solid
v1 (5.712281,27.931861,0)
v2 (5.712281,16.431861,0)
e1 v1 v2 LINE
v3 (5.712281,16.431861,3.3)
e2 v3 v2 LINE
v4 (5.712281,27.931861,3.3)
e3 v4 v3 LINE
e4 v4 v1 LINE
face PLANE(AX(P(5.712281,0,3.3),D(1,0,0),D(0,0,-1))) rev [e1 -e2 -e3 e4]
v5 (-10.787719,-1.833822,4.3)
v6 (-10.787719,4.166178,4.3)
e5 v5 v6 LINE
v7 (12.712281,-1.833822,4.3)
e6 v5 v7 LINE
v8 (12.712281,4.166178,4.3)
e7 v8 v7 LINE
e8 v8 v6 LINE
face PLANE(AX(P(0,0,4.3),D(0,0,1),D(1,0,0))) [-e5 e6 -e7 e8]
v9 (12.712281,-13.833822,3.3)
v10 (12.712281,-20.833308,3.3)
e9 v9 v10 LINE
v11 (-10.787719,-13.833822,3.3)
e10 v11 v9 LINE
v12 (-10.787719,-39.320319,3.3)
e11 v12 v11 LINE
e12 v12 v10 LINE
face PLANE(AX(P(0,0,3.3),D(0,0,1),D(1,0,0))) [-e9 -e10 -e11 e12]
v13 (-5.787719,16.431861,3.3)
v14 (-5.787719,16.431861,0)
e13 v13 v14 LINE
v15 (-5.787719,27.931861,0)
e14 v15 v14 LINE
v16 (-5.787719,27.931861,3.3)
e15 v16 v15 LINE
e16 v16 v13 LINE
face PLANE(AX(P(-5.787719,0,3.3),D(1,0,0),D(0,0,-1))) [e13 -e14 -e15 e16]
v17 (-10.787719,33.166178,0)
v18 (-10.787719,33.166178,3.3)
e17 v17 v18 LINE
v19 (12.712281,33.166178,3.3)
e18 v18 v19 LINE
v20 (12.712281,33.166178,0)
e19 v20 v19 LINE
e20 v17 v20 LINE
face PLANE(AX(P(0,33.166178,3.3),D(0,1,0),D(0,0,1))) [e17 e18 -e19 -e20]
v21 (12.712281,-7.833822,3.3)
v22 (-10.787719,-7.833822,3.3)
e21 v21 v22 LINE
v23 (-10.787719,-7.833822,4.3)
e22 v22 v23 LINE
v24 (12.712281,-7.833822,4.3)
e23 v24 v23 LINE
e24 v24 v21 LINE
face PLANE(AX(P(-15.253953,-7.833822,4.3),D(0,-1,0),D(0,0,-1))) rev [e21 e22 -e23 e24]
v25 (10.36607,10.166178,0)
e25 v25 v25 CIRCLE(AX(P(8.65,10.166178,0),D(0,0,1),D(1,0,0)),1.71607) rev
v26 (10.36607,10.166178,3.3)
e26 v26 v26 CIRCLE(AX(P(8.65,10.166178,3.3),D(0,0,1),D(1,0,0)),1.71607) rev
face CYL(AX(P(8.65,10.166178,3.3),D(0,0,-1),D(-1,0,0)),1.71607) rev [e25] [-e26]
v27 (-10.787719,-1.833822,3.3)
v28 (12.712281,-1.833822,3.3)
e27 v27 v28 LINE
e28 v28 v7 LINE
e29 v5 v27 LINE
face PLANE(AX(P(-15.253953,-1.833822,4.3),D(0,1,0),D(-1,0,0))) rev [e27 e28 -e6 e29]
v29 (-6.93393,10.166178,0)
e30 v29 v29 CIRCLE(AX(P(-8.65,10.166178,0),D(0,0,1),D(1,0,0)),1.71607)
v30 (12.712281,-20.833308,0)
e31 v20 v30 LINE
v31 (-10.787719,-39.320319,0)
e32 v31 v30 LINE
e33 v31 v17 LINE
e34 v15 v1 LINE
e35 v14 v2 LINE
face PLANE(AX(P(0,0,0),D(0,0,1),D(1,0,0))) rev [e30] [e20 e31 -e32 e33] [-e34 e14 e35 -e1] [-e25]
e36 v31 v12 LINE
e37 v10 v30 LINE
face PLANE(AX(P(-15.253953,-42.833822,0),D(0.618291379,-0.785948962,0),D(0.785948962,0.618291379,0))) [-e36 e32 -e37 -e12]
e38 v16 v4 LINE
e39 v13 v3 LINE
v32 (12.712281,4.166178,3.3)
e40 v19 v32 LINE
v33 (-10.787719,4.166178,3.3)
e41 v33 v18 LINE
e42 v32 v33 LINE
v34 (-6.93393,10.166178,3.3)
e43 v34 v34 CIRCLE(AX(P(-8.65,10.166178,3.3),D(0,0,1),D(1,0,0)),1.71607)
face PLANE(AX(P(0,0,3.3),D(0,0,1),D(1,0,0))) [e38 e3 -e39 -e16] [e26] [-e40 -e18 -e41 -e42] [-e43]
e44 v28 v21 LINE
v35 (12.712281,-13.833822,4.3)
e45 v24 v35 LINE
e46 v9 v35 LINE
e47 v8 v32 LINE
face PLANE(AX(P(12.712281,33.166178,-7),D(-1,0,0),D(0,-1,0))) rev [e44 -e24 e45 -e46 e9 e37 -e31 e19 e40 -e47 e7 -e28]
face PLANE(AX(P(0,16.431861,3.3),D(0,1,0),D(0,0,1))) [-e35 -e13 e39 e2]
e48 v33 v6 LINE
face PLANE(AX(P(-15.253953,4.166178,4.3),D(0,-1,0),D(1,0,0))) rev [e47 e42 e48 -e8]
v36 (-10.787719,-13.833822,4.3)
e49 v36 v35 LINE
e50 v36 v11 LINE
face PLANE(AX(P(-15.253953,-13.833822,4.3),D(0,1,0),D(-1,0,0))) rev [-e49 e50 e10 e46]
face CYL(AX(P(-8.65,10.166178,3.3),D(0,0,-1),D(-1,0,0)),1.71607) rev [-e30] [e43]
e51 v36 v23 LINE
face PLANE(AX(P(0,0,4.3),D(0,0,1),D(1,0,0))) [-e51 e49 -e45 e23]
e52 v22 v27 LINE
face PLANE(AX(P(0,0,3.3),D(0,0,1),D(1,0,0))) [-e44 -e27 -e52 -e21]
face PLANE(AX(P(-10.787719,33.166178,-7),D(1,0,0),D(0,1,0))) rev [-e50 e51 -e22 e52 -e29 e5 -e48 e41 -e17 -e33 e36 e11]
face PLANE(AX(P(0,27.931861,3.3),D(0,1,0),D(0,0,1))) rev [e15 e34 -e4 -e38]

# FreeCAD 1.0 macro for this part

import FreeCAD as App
import Part
import Sketcher
from FreeCAD import Vector


def add_polygon(sketch, points):
    """Adds a closed chain of lines whose ends are joined by coincident constraints."""
    first, n = sketch.GeometryCount, len(points)
    for a, b in zip(points, points[1:] + points[:1]):
        sketch.addGeometry(Part.LineSegment(App.Vector(*a, 0), App.Vector(*b, 0)), False)
    for i in range(n):
        sketch.addConstraint(Sketcher.Constraint("Coincident", first + i, 2, first + (i + 1) % n, 1))

doc = App.newDocument("Part")
body = doc.addObject("PartDesign::Body", "Body")

# Sketch on XY plane
sketch1 = doc.addObject("Sketcher::SketchObject", "Sketch")
body.addObject(sketch1)
sketch1.AttachmentSupport = (doc.XY_Plane, [""])
sketch1.MapMode = "FlatFace"
add_polygon(sketch1, [(-15.3, 33.2), (-15.3, -42.8), (15.3, -42.8), (15.3, 33.2)])  # lines 0-3
add_polygon(sketch1, [(12.3, -39.8), (-12.3, -39.8), (-12.3, -20.8), (12.3, -20.8)])  # lines 4-7
sketch1.addGeometry(Part.Circle(Vector(-8.7, 10.2, 0), Vector(0, 0, 1), 1.7), False)  # 8
add_polygon(sketch1, [(5.7, 16.4), (-5.8, 16.4), (-5.8, 27.9), (5.7, 27.9)])  # lines 9-12
sketch1.addGeometry(Part.Circle(Vector(8.7, 10.2, 0), Vector(0, 0, 1), 1.7), False)  # 13
sketch1.addConstraint([
    Sketcher.Constraint("Vertical", 0),
    Sketcher.Constraint("Horizontal", 1),
    Sketcher.Constraint("Vertical", 2),
    Sketcher.Constraint("Horizontal", 3),
    Sketcher.Constraint("Horizontal", 4),
    Sketcher.Constraint("Vertical", 5),
    Sketcher.Constraint("Horizontal", 6),
    Sketcher.Constraint("Vertical", 7),
    Sketcher.Constraint("Horizontal", 9),
    Sketcher.Constraint("Vertical", 10),
    Sketcher.Constraint("Horizontal", 11),
    Sketcher.Constraint("Vertical", 12),
    Sketcher.Constraint("Equal", 8, 13),
    Sketcher.Constraint("Symmetric", 8, 3, 13, 3, -2),
    Sketcher.Constraint("Equal", 11, 10),
    Sketcher.Constraint("DistanceY", 0, 2, 0, 1, 76.0),
    Sketcher.Constraint("DistanceY", 5, 1, 5, 2, 19.0),
    Sketcher.Constraint("DistanceX", 9, 2, 9, 1, 11.5),
    Sketcher.Constraint("DistanceY", 0, 2, 8, 3, 53.0),
    Sketcher.Constraint("DistanceX", 0, 2, 4, 2, 3.0),
    Sketcher.Constraint("DistanceY", 0, 2, 4, 2, 3.0),
    Sketcher.Constraint("DistanceX", 6, 2, 1, 2, 3.0),
    Sketcher.Constraint("DistanceX", 8, 3, 13, 3, 17.3),
    Sketcher.Constraint("Diameter", 8, 3.432139),
    Sketcher.Constraint("DistanceX", 1, 1, 1, 2, 30.507906),
    Sketcher.Constraint("DistanceX", 9, 2, -1, 1, 5.787719),
    Sketcher.Constraint("DistanceY", -1, 1, 9, 2, 16.431861),
    Sketcher.Constraint("DistanceY", -1, 1, 8, 3, 10.166178),
    Sketcher.Constraint("DistanceX", 0, 2, -1, 1, 15.253953),
])
pad1 = doc.addObject("PartDesign::Pad", "Pad")
body.addObject(pad1)
pad1.Profile = sketch1
pad1.Length = 3.3

# Sketch on XY plane
sketch2 = doc.addObject("Sketcher::SketchObject", "Sketch001")
body.addObject(sketch2)
sketch2.AttachmentSupport = (doc.XY_Plane, [""])
sketch2.MapMode = "FlatFace"
sketch2.AttachmentOffset = App.Placement(Vector(0, 0, 3.3), App.Rotation())
add_polygon(sketch2, [(-15, 4), (-15, -2), (15, -2), (15, 4)])  # lines 0-3
add_polygon(sketch2, [(-15, -8), (-15, -14), (15, -14), (15, -8)])  # lines 4-7
sketch2.addConstraint([
    Sketcher.Constraint("Vertical", 0),
    Sketcher.Constraint("Horizontal", 1),
    Sketcher.Constraint("Vertical", 2),
    Sketcher.Constraint("Horizontal", 3),
    Sketcher.Constraint("Vertical", 4),
    Sketcher.Constraint("Horizontal", 5),
    Sketcher.Constraint("Vertical", 6),
    Sketcher.Constraint("Horizontal", 7),
    Sketcher.Constraint("Vertical", 3, 2, 4, 2),
    Sketcher.Constraint("Vertical", 2, 2, 5, 2),
    Sketcher.Constraint("Equal", 2, 4),
    Sketcher.Constraint("DistanceY", 0, 2, 0, 1, 6.0),
    Sketcher.Constraint("DistanceY", 4, 2, 0, 2, 12.0),
    Sketcher.Constraint("DistanceX", 1, 1, 1, 2, 30.507906),
    Sketcher.Constraint("DistanceX", 0, 2, -1, 1, 15.253953),
    Sketcher.Constraint("DistanceY", 0, 2, -1, 1, 1.833822),
])
pad2 = doc.addObject("PartDesign::Pad", "Pad001")
body.addObject(pad2)
pad2.Profile = sketch2
pad2.Length = 1

# Sketch on XY plane
sketch3 = doc.addObject("Sketcher::SketchObject", "Sketch002")
body.addObject(sketch3)
sketch3.AttachmentSupport = (doc.XY_Plane, [""])
sketch3.MapMode = "FlatFace"
add_polygon(sketch3, [(-15, -18), (15, -43), (15, -18)])  # lines 0-2
sketch3.addConstraint([
    Sketcher.Constraint("Vertical", 1),
    Sketcher.Constraint("Horizontal", 2),
    Sketcher.Constraint("DistanceY", 1, 1, 1, 2, 24.359762),
    Sketcher.Constraint("Distance", 0, 39.040112),
    Sketcher.Constraint("DistanceY", 1, 2, -1, 1, 18.47406),
    Sketcher.Constraint("DistanceX", -1, 1, 0, 2, 15.253953),
])
pad3 = doc.addObject("PartDesign::Pad", "Pad002")
body.addObject(pad3)
pad3.Profile = sketch3
pad3.Length = 3.3

# Sketch on XY plane
sketch4 = doc.addObject("Sketcher::SketchObject", "Sketch003")
body.addObject(sketch4)
sketch4.AttachmentSupport = (doc.XY_Plane, [""])
sketch4.MapMode = "FlatFace"
sketch4.AttachmentOffset = App.Placement(Vector(0, 0, 3.3), App.Rotation())
add_polygon(sketch4, [(15, -43), (-15, -19), (-15, -43)])  # lines 0-2
sketch4.addConstraint([
    Sketcher.Constraint("Vertical", 1),
    Sketcher.Constraint("Horizontal", 2),
    Sketcher.Constraint("DistanceX", 2, 1, 2, 2, 30.507906),
    Sketcher.Constraint("DistanceY", 1, 2, 1, 1, 24.027073),
    Sketcher.Constraint("DistanceY", 0, 2, -1, 1, 18.806749),
    Sketcher.Constraint("DistanceX", 0, 2, -1, 1, 15.253953),
])
pocket1 = doc.addObject("PartDesign::Pocket", "Pocket")
body.addObject(pocket1)
pocket1.Profile = sketch4
pocket1.Length = 3.3

# Sketch on XY plane
sketch5 = doc.addObject("Sketcher::SketchObject", "Sketch004")
body.addObject(sketch5)
sketch5.AttachmentSupport = (doc.XY_Plane, [""])
sketch5.MapMode = "FlatFace"
sketch5.AttachmentOffset = App.Placement(Vector(0, 0, 3.3), App.Rotation())
add_polygon(sketch5, [(-15, -14), (-15, -43), (15, -43), (15, -14)])  # lines 0-3
sketch5.addConstraint([
    Sketcher.Constraint("Vertical", 0),
    Sketcher.Constraint("Horizontal", 1),
    Sketcher.Constraint("Vertical", 2),
    Sketcher.Constraint("Horizontal", 3),
    Sketcher.Constraint("DistanceY", 0, 2, 0, 1, 29.0),
    Sketcher.Constraint("DistanceX", 1, 1, 1, 2, 30.507906),
    Sketcher.Constraint("DistanceX", 0, 2, -1, 1, 15.253953),
    Sketcher.Constraint("DistanceY", 0, 2, -1, 1, 42.833822),
])
pad4 = doc.addObject("PartDesign::Pad", "Pad003")
body.addObject(pad4)
pad4.Profile = sketch5
pad4.Length = 3.3
pad4.Reversed = True

# Sketch on XY plane
sketch6 = doc.addObject("Sketcher::SketchObject", "Sketch005")
body.addObject(sketch6)
sketch6.AttachmentSupport = (doc.XY_Plane, [""])
sketch6.MapMode = "FlatFace"
sketch6.AttachmentOffset = App.Placement(Vector(0, 0, 3.3), App.Rotation())
add_polygon(sketch6, [(15, -19), (-15, -43), (15, -43)])  # lines 0-2
sketch6.addConstraint([
    Sketcher.Constraint("Horizontal", 1),
    Sketcher.Constraint("Vertical", 2),
    Sketcher.Constraint("DistanceY", 2, 1, 2, 2, 24.0),
    Sketcher.Constraint("Distance", 0, 38.81665),
    Sketcher.Constraint("DistanceX", 0, 2, -1, 1, 15.253953),
    Sketcher.Constraint("DistanceY", 0, 2, -1, 1, 42.833822),
])
pocket2 = doc.addObject("PartDesign::Pocket", "Pocket001")
body.addObject(pocket2)
pocket2.Profile = sketch6
pocket2.Length = 3.3

# Sketch on XY plane
sketch7 = doc.addObject("Sketcher::SketchObject", "Sketch006")
body.addObject(sketch7)
sketch7.AttachmentSupport = (doc.XY_Plane, [""])
sketch7.MapMode = "FlatFace"
sketch7.AttachmentOffset = App.Placement(Vector(0, 0, 4.3), App.Rotation())
add_polygon(sketch7, [(-15.3, 33.2), (-15.3, -43.1), (-10.8, -43.1), (-10.8, 33.2)])  # lines 0-3
add_polygon(sketch7, [(12.7, 33.2), (12.7, -22.7), (16.6, -22.7), (16.6, 33.2)])  # lines 4-7
sketch7.addConstraint([
    Sketcher.Constraint("Vertical", 0),
    Sketcher.Constraint("Horizontal", 1),
    Sketcher.Constraint("Vertical", 2),
    Sketcher.Constraint("Horizontal", 3),
    Sketcher.Constraint("Vertical", 4),
    Sketcher.Constraint("Horizontal", 5),
    Sketcher.Constraint("Vertical", 6),
    Sketcher.Constraint("Horizontal", 7),
    Sketcher.Constraint("Horizontal", 3, 2, 6, 2),
    Sketcher.Constraint("DistanceX", 1, 2, 4, 2, 23.5),
    Sketcher.Constraint("DistanceY", 4, 2, -1, 1, 22.686),
    Sketcher.Constraint("DistanceX", 5, 1, 5, 2, 3.912292),
    Sketcher.Constraint("DistanceX", 1, 1, 1, 2, 4.466234),
    Sketcher.Constraint("DistanceY", 0, 2, 0, 1, 76.296905),
    Sketcher.Constraint("DistanceY", 4, 2, 4, 1, 55.852178),
    Sketcher.Constraint("DistanceX", 1, 2, -1, 1, 10.787719),
])
pocket3 = doc.addObject("PartDesign::Pocket", "Pocket002")
body.addObject(pocket3)
pocket3.Profile = sketch7
pocket3.Length = 11.3

doc.recompute()
